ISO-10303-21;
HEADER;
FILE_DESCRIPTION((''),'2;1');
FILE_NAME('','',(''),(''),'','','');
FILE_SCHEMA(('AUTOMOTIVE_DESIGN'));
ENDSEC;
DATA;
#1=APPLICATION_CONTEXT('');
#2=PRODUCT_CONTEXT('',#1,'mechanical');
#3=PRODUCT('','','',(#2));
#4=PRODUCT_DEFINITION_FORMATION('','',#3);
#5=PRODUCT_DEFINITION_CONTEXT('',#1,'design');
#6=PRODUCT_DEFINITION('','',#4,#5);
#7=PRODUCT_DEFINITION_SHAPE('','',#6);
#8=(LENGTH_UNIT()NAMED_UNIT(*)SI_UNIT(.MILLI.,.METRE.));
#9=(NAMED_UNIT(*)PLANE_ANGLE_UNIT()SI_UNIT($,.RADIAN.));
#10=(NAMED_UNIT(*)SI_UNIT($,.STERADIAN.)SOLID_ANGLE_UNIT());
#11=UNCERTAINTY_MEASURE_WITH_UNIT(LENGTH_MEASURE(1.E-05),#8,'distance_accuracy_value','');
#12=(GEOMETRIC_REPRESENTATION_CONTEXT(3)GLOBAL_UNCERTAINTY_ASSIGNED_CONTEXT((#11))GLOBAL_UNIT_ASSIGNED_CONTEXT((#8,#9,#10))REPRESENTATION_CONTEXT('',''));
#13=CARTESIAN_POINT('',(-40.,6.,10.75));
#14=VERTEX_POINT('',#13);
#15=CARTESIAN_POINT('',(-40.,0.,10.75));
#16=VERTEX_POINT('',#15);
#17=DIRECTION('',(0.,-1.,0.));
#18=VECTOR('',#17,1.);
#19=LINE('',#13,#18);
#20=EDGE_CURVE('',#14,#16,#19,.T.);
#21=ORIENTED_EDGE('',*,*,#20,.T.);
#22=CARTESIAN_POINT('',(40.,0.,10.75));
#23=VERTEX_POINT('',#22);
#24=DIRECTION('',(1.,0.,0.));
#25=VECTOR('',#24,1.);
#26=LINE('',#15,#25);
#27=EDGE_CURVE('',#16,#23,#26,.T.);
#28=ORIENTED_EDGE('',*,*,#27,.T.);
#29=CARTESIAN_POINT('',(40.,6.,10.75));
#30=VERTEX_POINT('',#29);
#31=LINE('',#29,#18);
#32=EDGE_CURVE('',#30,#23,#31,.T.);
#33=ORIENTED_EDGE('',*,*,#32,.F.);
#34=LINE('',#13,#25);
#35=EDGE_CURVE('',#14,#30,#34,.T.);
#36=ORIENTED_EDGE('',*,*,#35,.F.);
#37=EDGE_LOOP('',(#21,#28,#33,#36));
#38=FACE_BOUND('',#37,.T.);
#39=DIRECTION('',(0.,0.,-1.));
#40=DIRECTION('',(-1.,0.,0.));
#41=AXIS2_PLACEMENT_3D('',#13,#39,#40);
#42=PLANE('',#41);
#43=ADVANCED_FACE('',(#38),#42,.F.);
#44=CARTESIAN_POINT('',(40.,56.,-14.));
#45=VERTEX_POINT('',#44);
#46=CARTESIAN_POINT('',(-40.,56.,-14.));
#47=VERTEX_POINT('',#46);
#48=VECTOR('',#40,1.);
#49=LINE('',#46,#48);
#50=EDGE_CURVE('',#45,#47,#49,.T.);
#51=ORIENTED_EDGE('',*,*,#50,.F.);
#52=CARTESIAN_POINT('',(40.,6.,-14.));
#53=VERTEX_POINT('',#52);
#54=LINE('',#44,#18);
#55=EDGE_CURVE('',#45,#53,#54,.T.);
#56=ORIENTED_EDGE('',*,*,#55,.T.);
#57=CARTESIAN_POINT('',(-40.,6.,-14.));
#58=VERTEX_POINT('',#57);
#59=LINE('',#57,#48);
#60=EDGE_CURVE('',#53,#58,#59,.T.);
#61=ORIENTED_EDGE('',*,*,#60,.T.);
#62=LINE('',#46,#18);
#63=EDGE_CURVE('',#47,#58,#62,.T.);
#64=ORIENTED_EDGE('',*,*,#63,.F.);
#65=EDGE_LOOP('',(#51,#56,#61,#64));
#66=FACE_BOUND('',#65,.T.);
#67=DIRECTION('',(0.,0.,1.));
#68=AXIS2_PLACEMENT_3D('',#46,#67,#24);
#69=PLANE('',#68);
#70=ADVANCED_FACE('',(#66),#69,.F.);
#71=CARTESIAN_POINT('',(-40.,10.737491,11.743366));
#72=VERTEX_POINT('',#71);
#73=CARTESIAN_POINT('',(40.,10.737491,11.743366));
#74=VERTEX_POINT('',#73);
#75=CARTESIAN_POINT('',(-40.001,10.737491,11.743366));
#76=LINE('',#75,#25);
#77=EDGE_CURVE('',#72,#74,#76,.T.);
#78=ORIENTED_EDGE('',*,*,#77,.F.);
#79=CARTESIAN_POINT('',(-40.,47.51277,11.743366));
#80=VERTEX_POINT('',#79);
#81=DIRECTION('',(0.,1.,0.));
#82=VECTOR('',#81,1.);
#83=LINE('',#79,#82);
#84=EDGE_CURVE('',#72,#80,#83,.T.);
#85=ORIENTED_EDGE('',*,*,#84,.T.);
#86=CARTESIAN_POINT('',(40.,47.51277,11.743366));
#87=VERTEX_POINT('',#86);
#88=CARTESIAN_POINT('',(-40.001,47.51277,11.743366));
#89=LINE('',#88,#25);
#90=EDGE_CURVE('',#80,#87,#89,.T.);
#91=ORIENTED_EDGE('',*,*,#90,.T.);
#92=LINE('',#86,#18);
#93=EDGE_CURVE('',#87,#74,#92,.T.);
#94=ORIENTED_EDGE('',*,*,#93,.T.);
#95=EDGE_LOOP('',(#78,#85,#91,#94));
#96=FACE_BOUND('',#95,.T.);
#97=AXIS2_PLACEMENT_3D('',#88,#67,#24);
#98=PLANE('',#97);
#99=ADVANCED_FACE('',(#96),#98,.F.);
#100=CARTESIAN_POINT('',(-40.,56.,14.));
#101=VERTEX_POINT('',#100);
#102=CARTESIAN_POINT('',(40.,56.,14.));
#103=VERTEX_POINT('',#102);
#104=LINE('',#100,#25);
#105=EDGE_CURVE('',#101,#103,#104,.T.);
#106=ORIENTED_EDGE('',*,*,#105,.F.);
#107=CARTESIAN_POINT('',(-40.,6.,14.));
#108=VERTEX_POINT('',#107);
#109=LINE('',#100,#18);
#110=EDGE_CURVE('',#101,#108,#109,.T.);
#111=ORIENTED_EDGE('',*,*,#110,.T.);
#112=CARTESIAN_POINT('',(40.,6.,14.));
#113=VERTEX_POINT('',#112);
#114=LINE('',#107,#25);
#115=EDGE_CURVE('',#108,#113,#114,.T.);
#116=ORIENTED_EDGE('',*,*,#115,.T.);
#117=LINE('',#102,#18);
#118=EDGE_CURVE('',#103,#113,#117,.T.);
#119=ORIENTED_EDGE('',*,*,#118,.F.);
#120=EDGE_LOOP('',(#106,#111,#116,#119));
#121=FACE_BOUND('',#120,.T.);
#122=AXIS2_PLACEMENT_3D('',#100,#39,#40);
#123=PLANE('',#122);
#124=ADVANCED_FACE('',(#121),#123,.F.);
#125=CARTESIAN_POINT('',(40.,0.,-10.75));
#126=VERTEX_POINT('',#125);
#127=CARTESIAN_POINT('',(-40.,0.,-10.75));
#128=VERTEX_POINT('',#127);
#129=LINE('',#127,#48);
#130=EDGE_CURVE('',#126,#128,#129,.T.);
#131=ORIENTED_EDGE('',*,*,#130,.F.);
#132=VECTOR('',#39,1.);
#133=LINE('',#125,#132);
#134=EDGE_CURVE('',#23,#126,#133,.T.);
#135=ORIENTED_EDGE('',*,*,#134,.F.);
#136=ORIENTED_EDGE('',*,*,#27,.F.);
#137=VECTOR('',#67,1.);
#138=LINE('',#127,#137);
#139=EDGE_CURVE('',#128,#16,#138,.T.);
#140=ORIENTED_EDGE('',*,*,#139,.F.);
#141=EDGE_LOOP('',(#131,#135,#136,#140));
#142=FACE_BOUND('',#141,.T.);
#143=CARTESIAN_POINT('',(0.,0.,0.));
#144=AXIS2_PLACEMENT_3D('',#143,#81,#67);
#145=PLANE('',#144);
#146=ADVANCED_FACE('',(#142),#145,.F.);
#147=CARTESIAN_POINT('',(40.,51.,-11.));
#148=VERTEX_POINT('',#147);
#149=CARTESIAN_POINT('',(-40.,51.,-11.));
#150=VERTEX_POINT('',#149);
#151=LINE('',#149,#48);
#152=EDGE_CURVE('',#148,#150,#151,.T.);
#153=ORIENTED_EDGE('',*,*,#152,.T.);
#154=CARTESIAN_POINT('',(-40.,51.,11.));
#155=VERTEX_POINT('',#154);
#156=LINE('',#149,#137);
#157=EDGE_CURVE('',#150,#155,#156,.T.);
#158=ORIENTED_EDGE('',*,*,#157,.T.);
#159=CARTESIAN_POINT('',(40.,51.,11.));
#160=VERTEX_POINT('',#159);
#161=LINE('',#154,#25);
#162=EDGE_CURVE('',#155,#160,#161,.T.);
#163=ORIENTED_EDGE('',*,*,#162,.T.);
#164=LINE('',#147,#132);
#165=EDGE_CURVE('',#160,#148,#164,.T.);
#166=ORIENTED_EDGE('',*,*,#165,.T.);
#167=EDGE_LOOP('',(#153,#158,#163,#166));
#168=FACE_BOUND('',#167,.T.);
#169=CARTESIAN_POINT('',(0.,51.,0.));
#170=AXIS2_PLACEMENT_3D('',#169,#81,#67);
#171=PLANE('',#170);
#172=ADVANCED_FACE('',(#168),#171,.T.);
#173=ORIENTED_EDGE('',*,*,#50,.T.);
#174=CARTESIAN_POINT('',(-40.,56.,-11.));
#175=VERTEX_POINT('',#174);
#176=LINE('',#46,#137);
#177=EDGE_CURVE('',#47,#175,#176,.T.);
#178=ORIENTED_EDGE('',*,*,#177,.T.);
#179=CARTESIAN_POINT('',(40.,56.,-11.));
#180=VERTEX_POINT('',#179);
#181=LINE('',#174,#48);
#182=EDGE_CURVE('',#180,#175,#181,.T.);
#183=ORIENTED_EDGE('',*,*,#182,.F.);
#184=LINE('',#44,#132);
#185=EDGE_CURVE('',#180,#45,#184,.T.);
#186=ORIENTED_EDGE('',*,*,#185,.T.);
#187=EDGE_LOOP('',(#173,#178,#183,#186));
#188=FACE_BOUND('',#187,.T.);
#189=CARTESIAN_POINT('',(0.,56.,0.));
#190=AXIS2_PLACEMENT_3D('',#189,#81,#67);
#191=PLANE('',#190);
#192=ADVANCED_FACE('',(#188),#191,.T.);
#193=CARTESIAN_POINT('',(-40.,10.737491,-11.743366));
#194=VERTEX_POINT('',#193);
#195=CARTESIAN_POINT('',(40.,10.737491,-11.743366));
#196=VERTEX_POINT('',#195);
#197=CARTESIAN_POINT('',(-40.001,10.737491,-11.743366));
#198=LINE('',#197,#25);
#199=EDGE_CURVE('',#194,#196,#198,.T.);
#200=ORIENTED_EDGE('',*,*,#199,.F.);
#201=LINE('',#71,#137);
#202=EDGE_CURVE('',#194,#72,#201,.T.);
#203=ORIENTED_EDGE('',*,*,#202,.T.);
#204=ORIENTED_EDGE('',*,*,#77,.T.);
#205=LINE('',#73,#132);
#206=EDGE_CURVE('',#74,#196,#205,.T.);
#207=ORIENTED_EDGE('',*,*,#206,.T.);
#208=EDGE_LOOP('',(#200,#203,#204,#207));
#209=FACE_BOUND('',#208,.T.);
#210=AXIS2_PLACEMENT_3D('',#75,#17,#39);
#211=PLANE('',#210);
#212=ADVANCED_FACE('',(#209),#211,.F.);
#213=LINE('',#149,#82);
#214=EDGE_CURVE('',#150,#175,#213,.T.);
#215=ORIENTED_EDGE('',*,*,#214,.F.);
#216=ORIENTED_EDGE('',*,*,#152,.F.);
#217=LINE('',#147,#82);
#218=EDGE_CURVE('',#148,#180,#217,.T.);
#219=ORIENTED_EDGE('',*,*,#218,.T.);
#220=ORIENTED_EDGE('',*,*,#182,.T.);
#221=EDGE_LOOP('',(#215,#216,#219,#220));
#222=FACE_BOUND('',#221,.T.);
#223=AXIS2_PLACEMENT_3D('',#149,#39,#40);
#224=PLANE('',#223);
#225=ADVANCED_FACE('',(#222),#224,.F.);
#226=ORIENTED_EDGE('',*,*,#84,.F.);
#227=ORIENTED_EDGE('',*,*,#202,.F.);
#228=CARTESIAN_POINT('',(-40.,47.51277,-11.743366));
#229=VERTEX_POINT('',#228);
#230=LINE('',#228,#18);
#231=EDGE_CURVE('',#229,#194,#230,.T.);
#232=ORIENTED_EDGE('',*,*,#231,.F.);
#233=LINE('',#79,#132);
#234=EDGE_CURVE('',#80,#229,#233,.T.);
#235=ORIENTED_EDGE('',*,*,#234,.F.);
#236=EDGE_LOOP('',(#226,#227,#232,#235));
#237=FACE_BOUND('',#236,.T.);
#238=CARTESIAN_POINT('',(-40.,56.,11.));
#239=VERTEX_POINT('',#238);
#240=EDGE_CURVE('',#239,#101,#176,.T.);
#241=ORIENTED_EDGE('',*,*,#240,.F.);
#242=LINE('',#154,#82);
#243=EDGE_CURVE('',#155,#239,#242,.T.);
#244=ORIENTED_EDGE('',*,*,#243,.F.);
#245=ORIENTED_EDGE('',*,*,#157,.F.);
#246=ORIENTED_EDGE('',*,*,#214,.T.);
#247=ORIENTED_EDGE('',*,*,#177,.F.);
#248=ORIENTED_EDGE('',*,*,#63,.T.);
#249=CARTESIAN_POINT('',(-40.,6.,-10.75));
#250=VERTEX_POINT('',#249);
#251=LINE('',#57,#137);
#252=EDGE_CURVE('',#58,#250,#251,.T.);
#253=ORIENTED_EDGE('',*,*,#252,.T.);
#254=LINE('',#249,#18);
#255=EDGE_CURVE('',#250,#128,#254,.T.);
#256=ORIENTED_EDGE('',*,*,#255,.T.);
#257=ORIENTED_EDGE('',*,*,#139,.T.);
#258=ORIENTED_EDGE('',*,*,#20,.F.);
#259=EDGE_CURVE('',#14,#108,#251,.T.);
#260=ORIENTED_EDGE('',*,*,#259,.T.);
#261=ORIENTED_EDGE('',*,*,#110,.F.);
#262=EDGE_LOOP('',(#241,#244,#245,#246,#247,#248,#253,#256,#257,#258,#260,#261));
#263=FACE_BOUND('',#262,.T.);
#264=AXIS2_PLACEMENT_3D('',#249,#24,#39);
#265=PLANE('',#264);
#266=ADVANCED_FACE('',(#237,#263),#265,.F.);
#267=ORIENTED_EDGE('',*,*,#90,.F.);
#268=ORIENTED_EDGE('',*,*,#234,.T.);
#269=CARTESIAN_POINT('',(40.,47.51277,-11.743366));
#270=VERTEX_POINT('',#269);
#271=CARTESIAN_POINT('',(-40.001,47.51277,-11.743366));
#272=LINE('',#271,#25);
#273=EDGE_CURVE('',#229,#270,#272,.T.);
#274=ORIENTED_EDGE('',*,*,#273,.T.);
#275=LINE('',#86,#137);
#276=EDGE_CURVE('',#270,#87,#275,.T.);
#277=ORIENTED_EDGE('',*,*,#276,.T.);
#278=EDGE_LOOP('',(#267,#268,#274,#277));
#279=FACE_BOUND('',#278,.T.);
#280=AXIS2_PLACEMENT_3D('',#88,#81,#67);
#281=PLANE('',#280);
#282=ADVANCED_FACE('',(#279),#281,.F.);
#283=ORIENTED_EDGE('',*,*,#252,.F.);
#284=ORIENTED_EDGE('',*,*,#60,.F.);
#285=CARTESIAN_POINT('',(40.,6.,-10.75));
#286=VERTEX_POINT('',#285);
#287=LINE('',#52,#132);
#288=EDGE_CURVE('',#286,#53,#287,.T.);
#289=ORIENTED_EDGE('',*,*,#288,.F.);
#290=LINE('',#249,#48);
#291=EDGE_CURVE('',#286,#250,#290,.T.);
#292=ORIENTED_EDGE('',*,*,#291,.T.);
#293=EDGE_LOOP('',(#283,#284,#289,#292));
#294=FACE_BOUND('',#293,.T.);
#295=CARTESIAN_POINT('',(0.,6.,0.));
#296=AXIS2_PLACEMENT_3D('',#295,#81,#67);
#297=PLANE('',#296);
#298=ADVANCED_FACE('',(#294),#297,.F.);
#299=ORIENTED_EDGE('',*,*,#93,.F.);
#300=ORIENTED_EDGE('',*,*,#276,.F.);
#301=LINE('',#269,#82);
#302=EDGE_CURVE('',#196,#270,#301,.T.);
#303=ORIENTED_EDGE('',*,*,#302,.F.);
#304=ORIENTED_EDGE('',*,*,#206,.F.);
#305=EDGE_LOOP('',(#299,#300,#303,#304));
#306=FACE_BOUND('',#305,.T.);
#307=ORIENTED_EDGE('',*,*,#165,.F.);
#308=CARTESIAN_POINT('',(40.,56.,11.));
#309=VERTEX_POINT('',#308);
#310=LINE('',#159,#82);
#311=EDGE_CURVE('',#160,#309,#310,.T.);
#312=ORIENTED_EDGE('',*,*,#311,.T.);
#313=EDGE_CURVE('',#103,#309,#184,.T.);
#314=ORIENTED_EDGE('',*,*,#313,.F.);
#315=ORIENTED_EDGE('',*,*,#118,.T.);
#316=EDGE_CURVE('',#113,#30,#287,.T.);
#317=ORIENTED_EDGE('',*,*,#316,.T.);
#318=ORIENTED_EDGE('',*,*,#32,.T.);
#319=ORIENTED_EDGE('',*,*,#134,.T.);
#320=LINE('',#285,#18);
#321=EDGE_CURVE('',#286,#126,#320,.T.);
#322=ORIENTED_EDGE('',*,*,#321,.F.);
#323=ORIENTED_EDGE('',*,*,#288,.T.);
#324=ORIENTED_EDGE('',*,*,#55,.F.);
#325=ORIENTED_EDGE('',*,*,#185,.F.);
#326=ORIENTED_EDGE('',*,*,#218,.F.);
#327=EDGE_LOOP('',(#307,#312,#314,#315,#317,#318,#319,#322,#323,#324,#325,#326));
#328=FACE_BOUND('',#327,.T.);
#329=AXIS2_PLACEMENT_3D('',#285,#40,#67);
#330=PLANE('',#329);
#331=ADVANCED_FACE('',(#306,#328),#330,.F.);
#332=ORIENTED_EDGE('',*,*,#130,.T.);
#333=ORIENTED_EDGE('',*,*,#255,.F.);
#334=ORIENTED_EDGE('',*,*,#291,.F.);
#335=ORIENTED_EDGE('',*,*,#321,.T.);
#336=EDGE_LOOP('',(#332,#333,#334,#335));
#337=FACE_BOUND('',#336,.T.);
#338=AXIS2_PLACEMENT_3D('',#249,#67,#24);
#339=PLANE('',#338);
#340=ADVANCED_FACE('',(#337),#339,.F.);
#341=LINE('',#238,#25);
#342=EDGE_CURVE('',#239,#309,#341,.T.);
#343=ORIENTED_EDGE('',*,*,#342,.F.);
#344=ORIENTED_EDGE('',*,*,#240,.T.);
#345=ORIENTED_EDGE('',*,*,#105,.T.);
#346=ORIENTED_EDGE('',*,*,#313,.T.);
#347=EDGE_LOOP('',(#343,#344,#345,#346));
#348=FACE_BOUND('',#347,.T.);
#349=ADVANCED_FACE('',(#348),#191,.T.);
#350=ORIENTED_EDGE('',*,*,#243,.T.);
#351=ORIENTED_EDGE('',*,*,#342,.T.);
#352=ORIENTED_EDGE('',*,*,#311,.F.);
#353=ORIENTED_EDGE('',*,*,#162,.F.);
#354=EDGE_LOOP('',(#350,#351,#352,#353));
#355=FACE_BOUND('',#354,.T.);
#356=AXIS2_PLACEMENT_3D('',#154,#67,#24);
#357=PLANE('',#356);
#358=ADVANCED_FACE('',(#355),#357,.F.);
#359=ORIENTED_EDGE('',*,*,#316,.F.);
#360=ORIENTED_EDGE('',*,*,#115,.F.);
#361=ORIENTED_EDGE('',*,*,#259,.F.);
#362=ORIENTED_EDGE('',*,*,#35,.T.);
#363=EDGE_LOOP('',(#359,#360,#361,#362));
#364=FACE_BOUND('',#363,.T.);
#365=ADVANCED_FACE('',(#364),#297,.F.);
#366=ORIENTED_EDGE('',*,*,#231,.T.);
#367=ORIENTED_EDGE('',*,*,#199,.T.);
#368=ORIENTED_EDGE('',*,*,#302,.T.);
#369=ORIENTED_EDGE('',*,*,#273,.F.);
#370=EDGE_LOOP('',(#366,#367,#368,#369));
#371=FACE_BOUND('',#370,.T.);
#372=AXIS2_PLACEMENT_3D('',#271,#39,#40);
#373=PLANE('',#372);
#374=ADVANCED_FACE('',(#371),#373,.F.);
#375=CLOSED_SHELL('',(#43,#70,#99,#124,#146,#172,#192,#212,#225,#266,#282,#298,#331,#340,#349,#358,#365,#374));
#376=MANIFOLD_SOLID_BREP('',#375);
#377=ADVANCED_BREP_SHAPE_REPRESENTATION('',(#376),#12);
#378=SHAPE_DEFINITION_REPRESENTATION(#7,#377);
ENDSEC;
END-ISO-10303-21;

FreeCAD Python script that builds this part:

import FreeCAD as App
import Part
import Sketcher
from FreeCAD import Vector
Q = App.Units.Quantity

doc = App.newDocument("Part")
body = doc.addObject("PartDesign::Body", "Body")

sketch1 = doc.addObject("Sketcher::SketchObject", "Sketch")
body.addObject(sketch1)
sketch1.AttachmentSupport = (doc.XZ_Plane, [""])
sketch1.MapMode = "FlatFace"
sketch1.addGeometry(Part.LineSegment(Vector(-40, -11, 0), Vector(-40, 11, 0)), False)
sketch1.addGeometry(Part.LineSegment(Vector(-40, 11, 0), Vector(40, 11, 0)), False)
sketch1.addGeometry(Part.LineSegment(Vector(40, 11, 0), Vector(40, -11, 0)), False)
sketch1.addGeometry(Part.LineSegment(Vector(40, -11, 0), Vector(-40, -11, 0)), False)
sketch1.addConstraint(Sketcher.Constraint("Coincident", 0, 2, 1, 1))
sketch1.addConstraint(Sketcher.Constraint("Coincident", 1, 2, 2, 1))
sketch1.addConstraint(Sketcher.Constraint("Coincident", 2, 2, 3, 1))
sketch1.addConstraint(Sketcher.Constraint("Coincident", 3, 2, 0, 1))
sketch1.addConstraint(Sketcher.Constraint("Vertical", 0))
sketch1.addConstraint(Sketcher.Constraint("Horizontal", 1))
sketch1.addConstraint(Sketcher.Constraint("Vertical", 2))
sketch1.addConstraint(Sketcher.Constraint("Horizontal", 3))
sketch1.addConstraint(Sketcher.Constraint("Symmetric", 0, 2, 2, 2, -1, 1))
sketch1.addConstraint(Sketcher.Constraint("DistanceX", 1, 1, 1, 2, Q("80 mm")))
sketch1.addConstraint(Sketcher.Constraint("DistanceY", 0, 1, 0, 2, Q("21.5 mm")))
pad1 = doc.addObject("PartDesign::Pad", "Pad")
body.addObject(pad1)
pad1.Profile = sketch1
pad1.Length = 6
pad1.Reversed = True

sketch2 = doc.addObject("Sketcher::SketchObject", "Sketch001")
body.addObject(sketch2)
sketch2.AttachmentSupport = (doc.XZ_Plane, [""])
sketch2.MapMode = "FlatFace"
sketch2.AttachmentOffset = App.Placement(Vector(0, 0, -6), App.Rotation())
sketch2.addGeometry(Part.LineSegment(Vector(-40, -14, 0), Vector(-40, 14, 0)), False)
sketch2.addGeometry(Part.LineSegment(Vector(-40, 14, 0), Vector(40, 14, 0)), False)
sketch2.addGeometry(Part.LineSegment(Vector(40, 14, 0), Vector(40, -14, 0)), False)
sketch2.addGeometry(Part.LineSegment(Vector(40, -14, 0), Vector(-40, -14, 0)), False)
sketch2.addConstraint(Sketcher.Constraint("Coincident", 0, 2, 1, 1))
sketch2.addConstraint(Sketcher.Constraint("Coincident", 1, 2, 2, 1))
sketch2.addConstraint(Sketcher.Constraint("Coincident", 2, 2, 3, 1))
sketch2.addConstraint(Sketcher.Constraint("Coincident", 3, 2, 0, 1))
sketch2.addConstraint(Sketcher.Constraint("Vertical", 0))
sketch2.addConstraint(Sketcher.Constraint("Horizontal", 1))
sketch2.addConstraint(Sketcher.Constraint("Vertical", 2))
sketch2.addConstraint(Sketcher.Constraint("Horizontal", 3))
sketch2.addConstraint(Sketcher.Constraint("Symmetric", 0, 2, 2, 2, -1, 1))
sketch2.addConstraint(Sketcher.Constraint("DistanceX", 1, 1, 1, 2, Q("80 mm")))
sketch2.addConstraint(Sketcher.Constraint("DistanceY", 0, 1, 0, 2, Q("28 mm")))
pad2 = doc.addObject("PartDesign::Pad", "Pad001")
body.addObject(pad2)
pad2.Profile = sketch2
pad2.Length = 50
pad2.Reversed = True

sketch3 = doc.addObject("Sketcher::SketchObject", "Sketch002")
body.addObject(sketch3)
sketch3.AttachmentSupport = (doc.XZ_Plane, [""])
sketch3.MapMode = "FlatFace"
sketch3.AttachmentOffset = App.Placement(Vector(0, 0, -56), App.Rotation())
sketch3.addGeometry(Part.LineSegment(Vector(-40, -11, 0), Vector(-40, 11, 0)), False)
sketch3.addGeometry(Part.LineSegment(Vector(-40, 11, 0), Vector(40, 11, 0)), False)
sketch3.addGeometry(Part.LineSegment(Vector(40, 11, 0), Vector(40, -11, 0)), False)
sketch3.addGeometry(Part.LineSegment(Vector(40, -11, 0), Vector(-40, -11, 0)), False)
sketch3.addConstraint(Sketcher.Constraint("Coincident", 0, 2, 1, 1))
sketch3.addConstraint(Sketcher.Constraint("Coincident", 1, 2, 2, 1))
sketch3.addConstraint(Sketcher.Constraint("Coincident", 2, 2, 3, 1))
sketch3.addConstraint(Sketcher.Constraint("Coincident", 3, 2, 0, 1))
sketch3.addConstraint(Sketcher.Constraint("Vertical", 0))
sketch3.addConstraint(Sketcher.Constraint("Horizontal", 1))
sketch3.addConstraint(Sketcher.Constraint("Vertical", 2))
sketch3.addConstraint(Sketcher.Constraint("Horizontal", 3))
sketch3.addConstraint(Sketcher.Constraint("Symmetric", 0, 2, 2, 2, -1, 1))
sketch3.addConstraint(Sketcher.Constraint("DistanceX", 1, 1, 1, 2, Q("80 mm")))
sketch3.addConstraint(Sketcher.Constraint("DistanceY", 0, 1, 0, 2, Q("22 mm")))
pocket1 = doc.addObject("PartDesign::Pocket", "Pocket")
body.addObject(pocket1)
pocket1.Profile = sketch3
pocket1.Length = 5
pocket1.Reversed = True

sketch4 = doc.addObject("Sketcher::SketchObject", "Sketch003")
body.addObject(sketch4)
sketch4.AttachmentSupport = (doc.YZ_Plane, [""])
sketch4.MapMode = "FlatFace"
sketch4.AttachmentOffset = App.Placement(Vector(0, 0, 40), App.Rotation())
sketch4.addGeometry(Part.LineSegment(Vector(48, 12, 0), Vector(11, 12, 0)), False)
sketch4.addGeometry(Part.LineSegment(Vector(11, 12, 0), Vector(11, -12, 0)), False)
sketch4.addGeometry(Part.LineSegment(Vector(11, -12, 0), Vector(48, -12, 0)), False)
sketch4.addGeometry(Part.LineSegment(Vector(48, -12, 0), Vector(48, 12, 0)), False)
sketch4.addConstraint(Sketcher.Constraint("Coincident", 0, 2, 1, 1))
sketch4.addConstraint(Sketcher.Constraint("Coincident", 1, 2, 2, 1))
sketch4.addConstraint(Sketcher.Constraint("Coincident", 2, 2, 3, 1))
sketch4.addConstraint(Sketcher.Constraint("Coincident", 3, 2, 0, 1))
sketch4.addConstraint(Sketcher.Constraint("Horizontal", 0))
sketch4.addConstraint(Sketcher.Constraint("Vertical", 1))
sketch4.addConstraint(Sketcher.Constraint("Horizontal", 2))
sketch4.addConstraint(Sketcher.Constraint("Vertical", 3))
sketch4.addConstraint(Sketcher.Constraint("DistanceX", 0, 2, 0, 1, Q("36.775278 mm")))
sketch4.addConstraint(Sketcher.Constraint("DistanceY", 1, 2, 1, 1, Q("23.486732 mm")))
sketch4.addConstraint(Sketcher.Constraint("DistanceX", -1, 1, 0, 2, Q("10.737491 mm")))
sketch4.addConstraint(Sketcher.Constraint("DistanceY", -1, 1, 0, 2, Q("11.743366 mm")))
pocket2 = doc.addObject("PartDesign::Pocket", "Pocket001")
body.addObject(pocket2)
pocket2.Profile = sketch4
pocket2.Type = "UpToFirst"

doc.recompute()
